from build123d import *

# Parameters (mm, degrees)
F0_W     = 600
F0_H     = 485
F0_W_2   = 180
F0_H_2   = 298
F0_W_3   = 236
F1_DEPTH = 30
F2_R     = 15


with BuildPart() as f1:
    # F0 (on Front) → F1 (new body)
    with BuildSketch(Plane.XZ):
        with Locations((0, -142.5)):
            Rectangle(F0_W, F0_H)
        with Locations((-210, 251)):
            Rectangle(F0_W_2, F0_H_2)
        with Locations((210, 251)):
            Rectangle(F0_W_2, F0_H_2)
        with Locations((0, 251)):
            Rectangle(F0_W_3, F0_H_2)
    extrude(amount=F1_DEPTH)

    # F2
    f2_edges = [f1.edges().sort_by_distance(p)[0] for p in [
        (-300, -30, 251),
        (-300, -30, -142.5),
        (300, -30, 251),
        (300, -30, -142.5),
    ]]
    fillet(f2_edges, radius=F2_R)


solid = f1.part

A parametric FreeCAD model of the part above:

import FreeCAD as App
import Part
import Sketcher

V = App.Vector


def edges_at(feature, points):
    """Names of the edges that pass closest to the given points."""
    edges = feature.Shape.Edges
    near = lambda p: min(range(len(edges)), key=lambda i: edges[i].distToShape(Part.Vertex(*p))[0])
    return sorted({f"Edge{near(p) + 1}" for p in points})

doc = App.newDocument("Part")
body = doc.addObject("PartDesign::Body", "Body")
body.AllowCompound = True

sketch1 = body.newObject("Sketcher::SketchObject", "Sketch")
sketch1.AttachmentSupport = (doc.getObject("XZ_Plane"), [""])
sketch1.MapMode = "FlatFace"
sketch1.addGeometry(Part.LineSegment(V(-300, 100, 0), V(-300, -385, 0)), False)
sketch1.addGeometry(Part.LineSegment(V(-300, -385, 0), V(300, -385, 0)), False)
sketch1.addGeometry(Part.LineSegment(V(300, -385, 0), V(300, 100, 0)), False)
sketch1.addGeometry(Part.LineSegment(V(300, 100, 0), V(-300, 100, 0)), False)
sketch1.addGeometry(Part.LineSegment(V(-300, 400, 0), V(-300, 102, 0)), False)
sketch1.addGeometry(Part.LineSegment(V(-300, 102, 0), V(-120, 102, 0)), False)
sketch1.addGeometry(Part.LineSegment(V(-120, 102, 0), V(-120, 400, 0)), False)
sketch1.addGeometry(Part.LineSegment(V(-120, 400, 0), V(-300, 400, 0)), False)
sketch1.addGeometry(Part.LineSegment(V(120, 400, 0), V(120, 102, 0)), False)
sketch1.addGeometry(Part.LineSegment(V(120, 102, 0), V(300, 102, 0)), False)
sketch1.addGeometry(Part.LineSegment(V(300, 102, 0), V(300, 400, 0)), False)
sketch1.addGeometry(Part.LineSegment(V(300, 400, 0), V(120, 400, 0)), False)
sketch1.addGeometry(Part.LineSegment(V(-118, 400, 0), V(-118, 102, 0)), False)
sketch1.addGeometry(Part.LineSegment(V(-118, 102, 0), V(118, 102, 0)), False)
sketch1.addGeometry(Part.LineSegment(V(118, 102, 0), V(118, 400, 0)), False)
sketch1.addGeometry(Part.LineSegment(V(118, 400, 0), V(-118, 400, 0)), False)
sketch1.addConstraint(Sketcher.Constraint("Coincident", 0, 2, 1, 1))
sketch1.addConstraint(Sketcher.Constraint("Coincident", 1, 2, 2, 1))
sketch1.addConstraint(Sketcher.Constraint("Coincident", 2, 2, 3, 1))
sketch1.addConstraint(Sketcher.Constraint("Coincident", 3, 2, 0, 1))
sketch1.addConstraint(Sketcher.Constraint("Coincident", 4, 2, 5, 1))
sketch1.addConstraint(Sketcher.Constraint("Coincident", 5, 2, 6, 1))
sketch1.addConstraint(Sketcher.Constraint("Coincident", 6, 2, 7, 1))
sketch1.addConstraint(Sketcher.Constraint("Coincident", 7, 2, 4, 1))
sketch1.addConstraint(Sketcher.Constraint("Coincident", 8, 2, 9, 1))
sketch1.addConstraint(Sketcher.Constraint("Coincident", 9, 2, 10, 1))
sketch1.addConstraint(Sketcher.Constraint("Coincident", 10, 2, 11, 1))
sketch1.addConstraint(Sketcher.Constraint("Coincident", 11, 2, 8, 1))
sketch1.addConstraint(Sketcher.Constraint("Coincident", 12, 2, 13, 1))
sketch1.addConstraint(Sketcher.Constraint("Coincident", 13, 2, 14, 1))
sketch1.addConstraint(Sketcher.Constraint("Coincident", 14, 2, 15, 1))
sketch1.addConstraint(Sketcher.Constraint("Coincident", 15, 2, 12, 1))
sketch1.addConstraint(Sketcher.Constraint("Vertical", 0))
sketch1.addConstraint(Sketcher.Constraint("Horizontal", 1))
sketch1.addConstraint(Sketcher.Constraint("Vertical", 2))
sketch1.addConstraint(Sketcher.Constraint("Horizontal", 3))
sketch1.addConstraint(Sketcher.Constraint("Vertical", 4))
sketch1.addConstraint(Sketcher.Constraint("Horizontal", 5))
sketch1.addConstraint(Sketcher.Constraint("Vertical", 6))
sketch1.addConstraint(Sketcher.Constraint("Horizontal", 7))
sketch1.addConstraint(Sketcher.Constraint("Vertical", 8))
sketch1.addConstraint(Sketcher.Constraint("Horizontal", 9))
sketch1.addConstraint(Sketcher.Constraint("Vertical", 10))
sketch1.addConstraint(Sketcher.Constraint("Horizontal", 11))
sketch1.addConstraint(Sketcher.Constraint("Vertical", 12))
sketch1.addConstraint(Sketcher.Constraint("Horizontal", 13))
sketch1.addConstraint(Sketcher.Constraint("Vertical", 14))
sketch1.addConstraint(Sketcher.Constraint("Horizontal", 15))
sketch1.addConstraint(Sketcher.Constraint("Symmetric", 5, 2, 8, 2, -2))
sketch1.addConstraint(Sketcher.Constraint("Symmetric", 7, 2, 10, 2, -2))
sketch1.addConstraint(Sketcher.Constraint("Horizontal", 9, 2, 12, 2))
sketch1.addConstraint(Sketcher.Constraint("Horizontal", 11, 2, 14, 2))
sketch1.addConstraint(Sketcher.Constraint("Vertical", 3, 2, 4, 2))
sketch1.addConstraint(Sketcher.Constraint("Vertical", 2, 2, 9, 2))
sketch1.addConstraint(Sketcher.Constraint("DistanceX", 1, 1, 1, 2, 600.0))
sketch1.addConstraint(Sketcher.Constraint("DistanceX", 5, 1, 5, 2, 180.0))
sketch1.addConstraint(Sketcher.Constraint("DistanceX", 13, 1, 13, 2, 236.0))
sketch1.addConstraint(Sketcher.Constraint("DistanceY", 0, 2, 0, 1, 485.0))
sketch1.addConstraint(Sketcher.Constraint("DistanceY", 4, 2, 4, 1, 298.0))
sketch1.addConstraint(Sketcher.Constraint("DistanceY", 0, 2, -1, 1, 385.0))
sketch1.addConstraint(Sketcher.Constraint("DistanceY", -1, 1, 4, 2, 102.0))
sketch1.addConstraint(Sketcher.Constraint("DistanceX", 12, 2, -1, 1, 118.0))
pad1 = body.newObject("PartDesign::Pad", "Pad")
pad1.Profile = sketch1
pad1.Length = 30
doc.recompute()

fillet = body.newObject("PartDesign::Fillet", "Fillet")
fillet.Base = (pad1, edges_at(pad1, [
    (-300, -30, 251),
    (-300, -30, -142.5),
    (300, -30, 251),
    (300, -30, -142.5),
]))
fillet.Radius = 15

doc.recompute()
